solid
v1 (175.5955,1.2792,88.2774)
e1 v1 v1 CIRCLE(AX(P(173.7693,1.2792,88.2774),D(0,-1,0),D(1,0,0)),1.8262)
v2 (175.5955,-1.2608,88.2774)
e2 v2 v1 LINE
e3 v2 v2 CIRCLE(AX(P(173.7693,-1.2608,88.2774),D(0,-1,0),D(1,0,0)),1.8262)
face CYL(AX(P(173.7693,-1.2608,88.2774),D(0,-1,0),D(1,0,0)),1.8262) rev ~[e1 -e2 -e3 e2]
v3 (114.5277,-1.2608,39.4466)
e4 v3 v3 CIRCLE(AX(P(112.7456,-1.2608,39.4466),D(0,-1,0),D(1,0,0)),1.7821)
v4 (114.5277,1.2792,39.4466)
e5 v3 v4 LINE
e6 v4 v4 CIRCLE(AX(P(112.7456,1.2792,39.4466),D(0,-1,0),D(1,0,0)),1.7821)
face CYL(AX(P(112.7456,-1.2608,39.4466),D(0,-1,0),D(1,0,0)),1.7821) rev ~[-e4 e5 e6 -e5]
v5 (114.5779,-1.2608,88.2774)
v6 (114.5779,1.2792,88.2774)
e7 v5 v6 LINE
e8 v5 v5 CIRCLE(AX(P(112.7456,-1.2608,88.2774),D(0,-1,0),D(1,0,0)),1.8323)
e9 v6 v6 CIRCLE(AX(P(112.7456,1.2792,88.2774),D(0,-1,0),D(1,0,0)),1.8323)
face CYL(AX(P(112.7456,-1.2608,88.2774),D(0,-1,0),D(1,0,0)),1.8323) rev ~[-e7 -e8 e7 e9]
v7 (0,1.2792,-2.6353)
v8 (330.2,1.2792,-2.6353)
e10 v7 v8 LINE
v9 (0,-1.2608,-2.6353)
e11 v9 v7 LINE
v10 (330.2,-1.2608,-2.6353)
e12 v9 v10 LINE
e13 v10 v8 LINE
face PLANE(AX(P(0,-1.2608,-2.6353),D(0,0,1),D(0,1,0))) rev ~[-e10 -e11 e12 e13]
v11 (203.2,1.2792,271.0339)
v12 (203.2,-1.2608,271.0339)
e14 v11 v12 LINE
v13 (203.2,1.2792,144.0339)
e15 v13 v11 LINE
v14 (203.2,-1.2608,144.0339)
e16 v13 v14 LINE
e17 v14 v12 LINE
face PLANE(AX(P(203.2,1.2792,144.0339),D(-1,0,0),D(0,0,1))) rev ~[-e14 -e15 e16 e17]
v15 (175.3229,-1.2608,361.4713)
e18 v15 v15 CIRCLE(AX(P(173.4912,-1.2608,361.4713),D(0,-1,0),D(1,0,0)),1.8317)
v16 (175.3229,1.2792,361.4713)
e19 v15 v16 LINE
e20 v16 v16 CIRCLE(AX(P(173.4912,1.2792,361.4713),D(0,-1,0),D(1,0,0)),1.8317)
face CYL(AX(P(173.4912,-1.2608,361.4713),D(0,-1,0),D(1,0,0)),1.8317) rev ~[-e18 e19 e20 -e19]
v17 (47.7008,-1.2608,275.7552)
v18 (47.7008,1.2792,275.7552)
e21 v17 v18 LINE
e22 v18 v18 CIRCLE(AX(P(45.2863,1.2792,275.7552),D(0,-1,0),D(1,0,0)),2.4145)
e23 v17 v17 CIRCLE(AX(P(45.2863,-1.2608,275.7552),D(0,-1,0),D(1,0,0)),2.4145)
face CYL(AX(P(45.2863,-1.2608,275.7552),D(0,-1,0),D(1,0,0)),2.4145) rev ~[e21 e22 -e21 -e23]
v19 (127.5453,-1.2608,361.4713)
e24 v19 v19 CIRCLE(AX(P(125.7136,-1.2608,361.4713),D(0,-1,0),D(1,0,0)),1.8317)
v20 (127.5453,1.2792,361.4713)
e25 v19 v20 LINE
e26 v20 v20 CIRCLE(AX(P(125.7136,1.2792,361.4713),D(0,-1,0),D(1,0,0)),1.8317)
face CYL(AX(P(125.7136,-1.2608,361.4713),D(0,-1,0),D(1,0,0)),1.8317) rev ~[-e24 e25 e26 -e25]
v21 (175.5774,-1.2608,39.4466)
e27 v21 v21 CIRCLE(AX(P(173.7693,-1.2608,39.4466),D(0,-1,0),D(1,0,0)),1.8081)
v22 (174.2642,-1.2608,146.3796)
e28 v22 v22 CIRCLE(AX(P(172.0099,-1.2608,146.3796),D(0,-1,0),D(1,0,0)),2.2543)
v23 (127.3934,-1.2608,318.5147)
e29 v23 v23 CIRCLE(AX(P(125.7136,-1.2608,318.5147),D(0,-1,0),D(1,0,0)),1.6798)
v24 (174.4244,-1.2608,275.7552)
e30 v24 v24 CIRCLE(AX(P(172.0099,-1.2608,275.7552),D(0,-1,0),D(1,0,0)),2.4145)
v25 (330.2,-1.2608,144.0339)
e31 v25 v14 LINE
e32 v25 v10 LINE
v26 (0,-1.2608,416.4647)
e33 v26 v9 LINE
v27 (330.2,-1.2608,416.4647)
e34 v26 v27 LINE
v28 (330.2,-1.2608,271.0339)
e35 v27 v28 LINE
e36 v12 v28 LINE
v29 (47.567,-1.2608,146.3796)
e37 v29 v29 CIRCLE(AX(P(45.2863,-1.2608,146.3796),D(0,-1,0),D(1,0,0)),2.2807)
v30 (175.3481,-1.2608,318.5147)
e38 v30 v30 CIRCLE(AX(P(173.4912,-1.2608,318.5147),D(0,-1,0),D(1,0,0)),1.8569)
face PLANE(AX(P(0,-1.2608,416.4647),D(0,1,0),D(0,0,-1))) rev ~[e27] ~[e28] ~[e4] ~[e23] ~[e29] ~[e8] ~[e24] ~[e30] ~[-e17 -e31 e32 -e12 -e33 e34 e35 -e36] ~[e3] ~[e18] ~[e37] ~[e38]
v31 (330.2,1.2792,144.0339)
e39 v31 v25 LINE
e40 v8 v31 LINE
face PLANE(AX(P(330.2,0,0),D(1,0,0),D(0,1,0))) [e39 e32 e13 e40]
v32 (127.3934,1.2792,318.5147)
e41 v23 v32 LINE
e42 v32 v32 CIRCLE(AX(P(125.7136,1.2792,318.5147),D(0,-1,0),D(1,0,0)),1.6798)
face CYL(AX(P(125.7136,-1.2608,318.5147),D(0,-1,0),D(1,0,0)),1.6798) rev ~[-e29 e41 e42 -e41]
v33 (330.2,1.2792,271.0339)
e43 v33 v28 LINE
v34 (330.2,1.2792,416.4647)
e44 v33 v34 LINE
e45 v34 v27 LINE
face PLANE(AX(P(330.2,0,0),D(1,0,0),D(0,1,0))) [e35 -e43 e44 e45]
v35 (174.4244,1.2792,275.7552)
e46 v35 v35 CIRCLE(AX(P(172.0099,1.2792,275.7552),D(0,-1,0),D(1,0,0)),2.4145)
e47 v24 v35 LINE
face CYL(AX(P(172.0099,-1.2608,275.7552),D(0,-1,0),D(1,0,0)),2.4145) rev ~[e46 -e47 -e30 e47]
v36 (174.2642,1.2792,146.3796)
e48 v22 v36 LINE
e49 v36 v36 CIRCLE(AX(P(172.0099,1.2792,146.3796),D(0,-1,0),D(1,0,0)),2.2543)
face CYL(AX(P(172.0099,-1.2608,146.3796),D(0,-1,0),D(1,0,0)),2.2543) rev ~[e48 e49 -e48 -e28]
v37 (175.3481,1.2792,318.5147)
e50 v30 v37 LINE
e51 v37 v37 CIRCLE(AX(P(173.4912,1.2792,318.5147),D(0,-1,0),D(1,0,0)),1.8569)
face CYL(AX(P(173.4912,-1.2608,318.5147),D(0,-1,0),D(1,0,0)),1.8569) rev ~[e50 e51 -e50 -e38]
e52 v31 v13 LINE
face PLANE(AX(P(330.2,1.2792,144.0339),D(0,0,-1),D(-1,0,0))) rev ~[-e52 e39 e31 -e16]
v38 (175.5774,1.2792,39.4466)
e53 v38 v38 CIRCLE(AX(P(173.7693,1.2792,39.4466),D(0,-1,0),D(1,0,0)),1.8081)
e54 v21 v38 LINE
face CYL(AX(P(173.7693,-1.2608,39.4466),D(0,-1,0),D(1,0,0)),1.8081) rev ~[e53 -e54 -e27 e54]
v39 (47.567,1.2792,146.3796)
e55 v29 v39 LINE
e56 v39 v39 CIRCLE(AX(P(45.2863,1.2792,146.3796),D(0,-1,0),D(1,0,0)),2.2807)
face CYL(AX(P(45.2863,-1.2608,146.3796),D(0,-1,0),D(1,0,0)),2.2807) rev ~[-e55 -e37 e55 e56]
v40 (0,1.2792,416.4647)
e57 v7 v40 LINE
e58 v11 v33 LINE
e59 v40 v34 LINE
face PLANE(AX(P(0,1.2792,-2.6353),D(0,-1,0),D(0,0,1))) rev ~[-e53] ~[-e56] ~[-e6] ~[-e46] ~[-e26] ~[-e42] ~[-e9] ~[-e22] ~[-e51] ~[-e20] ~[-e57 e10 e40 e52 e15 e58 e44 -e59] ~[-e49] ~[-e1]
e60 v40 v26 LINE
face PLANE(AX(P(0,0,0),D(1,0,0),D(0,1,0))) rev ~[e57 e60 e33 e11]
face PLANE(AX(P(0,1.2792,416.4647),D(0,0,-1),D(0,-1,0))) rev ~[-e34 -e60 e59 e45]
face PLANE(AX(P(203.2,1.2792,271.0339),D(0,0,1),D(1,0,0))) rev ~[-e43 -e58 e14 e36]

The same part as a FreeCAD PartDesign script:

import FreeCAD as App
import Part
import Sketcher
Q = App.Units.Quantity

doc = App.newDocument("Part")
body = doc.addObject("PartDesign::Body", "Body")

# Sketch on YZ plane
sketch1 = body.newObject("Sketcher::SketchObject", "Sketch")
sketch1.AttachmentSupport = (doc.getObject("YZ_Plane"), [""])
sketch1.MapMode = "FlatFace"
sketch1.addGeometry([
    Part.LineSegment(App.Vector(1.3, -2.6, 0), App.Vector(1.3, 416.5, 0)),
    Part.LineSegment(App.Vector(1.3, 416.5, 0), App.Vector(-1.3, 416.5, 0)),
    Part.LineSegment(App.Vector(-1.3, 416.5, 0), App.Vector(-1.3, -2.6, 0)),
    Part.LineSegment(App.Vector(-1.3, -2.6, 0), App.Vector(1.3, -2.6, 0)),
], False)
sketch1.addConstraint([
    Sketcher.Constraint("Coincident", 0, 2, 1, 1),
    Sketcher.Constraint("Coincident", 1, 2, 2, 1),
    Sketcher.Constraint("Coincident", 2, 2, 3, 1),
    Sketcher.Constraint("Coincident", 3, 2, 0, 1),
    Sketcher.Constraint("Vertical", 0),
    Sketcher.Constraint("Horizontal", 1),
    Sketcher.Constraint("Vertical", 2),
    Sketcher.Constraint("Horizontal", 3),
    Sketcher.Constraint("DistanceX", 1, 2, 1, 1, Q("0.1 in")),
    Sketcher.Constraint("DistanceY", 0, 1, 0, 2, Q("16.5 in")),
    Sketcher.Constraint("DistanceX", -1, 1, 0, 2, Q("1.2792 mm")),
    Sketcher.Constraint("DistanceY", -1, 1, 0, 2, Q("416.4647 mm")),
])
pad1 = body.newObject("PartDesign::Pad", "Pad")
pad1.Profile = sketch1
pad1.Length = Q("13 in")

# Sketch on XZ plane
sketch2 = body.newObject("Sketcher::SketchObject", "Sketch001")
sketch2.AttachmentSupport = (doc.getObject("XZ_Plane"), [""])
sketch2.MapMode = "FlatFace"
sketch2.AttachmentOffset = App.Placement(App.Vector(0, 0, 1.2608), App.Rotation())
sketch2.addGeometry([
    Part.Circle(App.Vector(173.5, 361.5, 0), App.Vector(0, 0, 1), 1.8),  # 0
    Part.Circle(App.Vector(173.5, 318.5, 0), App.Vector(0, 0, 1), 1.9),  # 1
    Part.Circle(App.Vector(125.7, 318.5, 0), App.Vector(0, 0, 1), 1.7),  # 2
    Part.Circle(App.Vector(125.7, 361.5, 0), App.Vector(0, 0, 1), 1.8),  # 3
    Part.Circle(App.Vector(172, 275.8, 0), App.Vector(0, 0, 1), 2.4),  # 4
    Part.Circle(App.Vector(172, 146.4, 0), App.Vector(0, 0, 1), 2.3),  # 5
    Part.Circle(App.Vector(45.3, 146.4, 0), App.Vector(0, 0, 1), 2.3),  # 6
    Part.Circle(App.Vector(45.3, 275.8, 0), App.Vector(0, 0, 1), 2.4),  # 7
    Part.Circle(App.Vector(173.8, 88.3, 0), App.Vector(0, 0, 1), 1.8),  # 8
    Part.Circle(App.Vector(173.8, 39.4, 0), App.Vector(0, 0, 1), 1.8),  # 9
    Part.Circle(App.Vector(112.7, 39.4, 0), App.Vector(0, 0, 1), 1.8),  # 10
    Part.Circle(App.Vector(112.7, 88.3, 0), App.Vector(0, 0, 1), 1.8),  # 11
], False)
sketch2.addConstraint([
    Sketcher.Constraint("Equal", 0, 3),
    Sketcher.Constraint("Equal", 4, 7),
    Sketcher.Constraint("Horizontal", 1, 3, 2, 3),
    Sketcher.Constraint("Horizontal", 0, 3, 3, 3),
    Sketcher.Constraint("Horizontal", 5, 3, 6, 3),
    Sketcher.Constraint("Horizontal", 4, 3, 7, 3),
    Sketcher.Constraint("Horizontal", 9, 3, 10, 3),
    Sketcher.Constraint("Horizontal", 8, 3, 11, 3),
    Sketcher.Constraint("Vertical", 0, 3, 1, 3),
    Sketcher.Constraint("Vertical", 2, 3, 3, 3),
    Sketcher.Constraint("Vertical", 4, 3, 5, 3),
    Sketcher.Constraint("Vertical", 6, 3, 7, 3),
    Sketcher.Constraint("Vertical", 8, 3, 9, 3),
    Sketcher.Constraint("Vertical", 10, 3, 11, 3),
    Sketcher.Constraint("Diameter", 5, Q("0.1775 in")),
    Sketcher.Constraint("Diameter", 8, Q("0.1438 in")),
    Sketcher.Constraint("Diameter", 0, Q("3.6634 mm")),
    Sketcher.Constraint("Diameter", 1, Q("3.7138 mm")),
    Sketcher.Constraint("Diameter", 2, Q("3.3596 mm")),
    Sketcher.Constraint("Diameter", 4, Q("4.829 mm")),
    Sketcher.Constraint("Diameter", 6, Q("4.5614 mm")),
    Sketcher.Constraint("Diameter", 9, Q("3.6162 mm")),
    Sketcher.Constraint("Diameter", 10, Q("3.5642 mm")),
    Sketcher.Constraint("Diameter", 11, Q("3.6646 mm")),
    Sketcher.Constraint("DistanceX", 2, 3, 1, 3, Q("1.881 in")),
    Sketcher.Constraint("DistanceY", -1, 1, 4, 3, Q("10.8565 in")),
    Sketcher.Constraint("DistanceX", -1, 1, 8, 3, Q("6.8413 in")),
    Sketcher.Constraint("DistanceY", -1, 1, 8, 3, Q("3.4755 in")),
    Sketcher.Constraint("DistanceX", -1, 1, 10, 3, Q("4.4388 in")),
    Sketcher.Constraint("DistanceY", 1, 3, 0, 3, Q("1.6912 in")),
    Sketcher.Constraint("DistanceX", 2, 3, 4, 3, Q("1.8227 in")),
    Sketcher.Constraint("DistanceY", 8, 3, 5, 3, Q("2.2875 in")),
    Sketcher.Constraint("DistanceY", 9, 3, 4, 3, Q("9.3035 in")),
    Sketcher.Constraint("DistanceX", -1, 1, 0, 3, Q("173.4912 mm")),
    Sketcher.Constraint("DistanceY", -1, 1, 0, 3, Q("361.4713 mm")),
    Sketcher.Constraint("DistanceX", -1, 1, 6, 3, Q("45.2863 mm")),
])
pocket1 = body.newObject("PartDesign::Pocket", "Pocket")
pocket1.Profile = sketch2
pocket1.Length = Q("0.1 in")

# Sketch on XZ plane
sketch3 = body.newObject("Sketcher::SketchObject", "Sketch002")
sketch3.AttachmentSupport = (doc.getObject("XZ_Plane"), [""])
sketch3.MapMode = "FlatFace"
sketch3.AttachmentOffset = App.Placement(App.Vector(0, 0, -1.2792), App.Rotation())
sketch3.addGeometry([
    Part.LineSegment(App.Vector(203, 271, 0), App.Vector(330, 271, 0)),
    Part.LineSegment(App.Vector(330, 271, 0), App.Vector(330, 144, 0)),
    Part.LineSegment(App.Vector(330, 144, 0), App.Vector(203, 144, 0)),
    Part.LineSegment(App.Vector(203, 144, 0), App.Vector(203, 271, 0)),
], False)
sketch3.addConstraint([
    Sketcher.Constraint("Coincident", 0, 2, 1, 1),
    Sketcher.Constraint("Coincident", 1, 2, 2, 1),
    Sketcher.Constraint("Coincident", 2, 2, 3, 1),
    Sketcher.Constraint("Coincident", 3, 2, 0, 1),
    Sketcher.Constraint("Horizontal", 0),
    Sketcher.Constraint("Vertical", 1),
    Sketcher.Constraint("Horizontal", 2),
    Sketcher.Constraint("Vertical", 3),
    Sketcher.Constraint("Equal", 2, 1),
    Sketcher.Constraint("DistanceX", 0, 1, 0, 2, Q("5 in")),
    Sketcher.Constraint("DistanceX", -1, 1, 0, 2, Q("13 in")),
    Sketcher.Constraint("DistanceY", -1, 1, 0, 2, Q("271.034 mm")),
])
pocket2 = body.newObject("PartDesign::Pocket", "Pocket001")
pocket2.Profile = sketch3
pocket2.Length = Q("0.1 in")
pocket2.Reversed = True

doc.recompute()
